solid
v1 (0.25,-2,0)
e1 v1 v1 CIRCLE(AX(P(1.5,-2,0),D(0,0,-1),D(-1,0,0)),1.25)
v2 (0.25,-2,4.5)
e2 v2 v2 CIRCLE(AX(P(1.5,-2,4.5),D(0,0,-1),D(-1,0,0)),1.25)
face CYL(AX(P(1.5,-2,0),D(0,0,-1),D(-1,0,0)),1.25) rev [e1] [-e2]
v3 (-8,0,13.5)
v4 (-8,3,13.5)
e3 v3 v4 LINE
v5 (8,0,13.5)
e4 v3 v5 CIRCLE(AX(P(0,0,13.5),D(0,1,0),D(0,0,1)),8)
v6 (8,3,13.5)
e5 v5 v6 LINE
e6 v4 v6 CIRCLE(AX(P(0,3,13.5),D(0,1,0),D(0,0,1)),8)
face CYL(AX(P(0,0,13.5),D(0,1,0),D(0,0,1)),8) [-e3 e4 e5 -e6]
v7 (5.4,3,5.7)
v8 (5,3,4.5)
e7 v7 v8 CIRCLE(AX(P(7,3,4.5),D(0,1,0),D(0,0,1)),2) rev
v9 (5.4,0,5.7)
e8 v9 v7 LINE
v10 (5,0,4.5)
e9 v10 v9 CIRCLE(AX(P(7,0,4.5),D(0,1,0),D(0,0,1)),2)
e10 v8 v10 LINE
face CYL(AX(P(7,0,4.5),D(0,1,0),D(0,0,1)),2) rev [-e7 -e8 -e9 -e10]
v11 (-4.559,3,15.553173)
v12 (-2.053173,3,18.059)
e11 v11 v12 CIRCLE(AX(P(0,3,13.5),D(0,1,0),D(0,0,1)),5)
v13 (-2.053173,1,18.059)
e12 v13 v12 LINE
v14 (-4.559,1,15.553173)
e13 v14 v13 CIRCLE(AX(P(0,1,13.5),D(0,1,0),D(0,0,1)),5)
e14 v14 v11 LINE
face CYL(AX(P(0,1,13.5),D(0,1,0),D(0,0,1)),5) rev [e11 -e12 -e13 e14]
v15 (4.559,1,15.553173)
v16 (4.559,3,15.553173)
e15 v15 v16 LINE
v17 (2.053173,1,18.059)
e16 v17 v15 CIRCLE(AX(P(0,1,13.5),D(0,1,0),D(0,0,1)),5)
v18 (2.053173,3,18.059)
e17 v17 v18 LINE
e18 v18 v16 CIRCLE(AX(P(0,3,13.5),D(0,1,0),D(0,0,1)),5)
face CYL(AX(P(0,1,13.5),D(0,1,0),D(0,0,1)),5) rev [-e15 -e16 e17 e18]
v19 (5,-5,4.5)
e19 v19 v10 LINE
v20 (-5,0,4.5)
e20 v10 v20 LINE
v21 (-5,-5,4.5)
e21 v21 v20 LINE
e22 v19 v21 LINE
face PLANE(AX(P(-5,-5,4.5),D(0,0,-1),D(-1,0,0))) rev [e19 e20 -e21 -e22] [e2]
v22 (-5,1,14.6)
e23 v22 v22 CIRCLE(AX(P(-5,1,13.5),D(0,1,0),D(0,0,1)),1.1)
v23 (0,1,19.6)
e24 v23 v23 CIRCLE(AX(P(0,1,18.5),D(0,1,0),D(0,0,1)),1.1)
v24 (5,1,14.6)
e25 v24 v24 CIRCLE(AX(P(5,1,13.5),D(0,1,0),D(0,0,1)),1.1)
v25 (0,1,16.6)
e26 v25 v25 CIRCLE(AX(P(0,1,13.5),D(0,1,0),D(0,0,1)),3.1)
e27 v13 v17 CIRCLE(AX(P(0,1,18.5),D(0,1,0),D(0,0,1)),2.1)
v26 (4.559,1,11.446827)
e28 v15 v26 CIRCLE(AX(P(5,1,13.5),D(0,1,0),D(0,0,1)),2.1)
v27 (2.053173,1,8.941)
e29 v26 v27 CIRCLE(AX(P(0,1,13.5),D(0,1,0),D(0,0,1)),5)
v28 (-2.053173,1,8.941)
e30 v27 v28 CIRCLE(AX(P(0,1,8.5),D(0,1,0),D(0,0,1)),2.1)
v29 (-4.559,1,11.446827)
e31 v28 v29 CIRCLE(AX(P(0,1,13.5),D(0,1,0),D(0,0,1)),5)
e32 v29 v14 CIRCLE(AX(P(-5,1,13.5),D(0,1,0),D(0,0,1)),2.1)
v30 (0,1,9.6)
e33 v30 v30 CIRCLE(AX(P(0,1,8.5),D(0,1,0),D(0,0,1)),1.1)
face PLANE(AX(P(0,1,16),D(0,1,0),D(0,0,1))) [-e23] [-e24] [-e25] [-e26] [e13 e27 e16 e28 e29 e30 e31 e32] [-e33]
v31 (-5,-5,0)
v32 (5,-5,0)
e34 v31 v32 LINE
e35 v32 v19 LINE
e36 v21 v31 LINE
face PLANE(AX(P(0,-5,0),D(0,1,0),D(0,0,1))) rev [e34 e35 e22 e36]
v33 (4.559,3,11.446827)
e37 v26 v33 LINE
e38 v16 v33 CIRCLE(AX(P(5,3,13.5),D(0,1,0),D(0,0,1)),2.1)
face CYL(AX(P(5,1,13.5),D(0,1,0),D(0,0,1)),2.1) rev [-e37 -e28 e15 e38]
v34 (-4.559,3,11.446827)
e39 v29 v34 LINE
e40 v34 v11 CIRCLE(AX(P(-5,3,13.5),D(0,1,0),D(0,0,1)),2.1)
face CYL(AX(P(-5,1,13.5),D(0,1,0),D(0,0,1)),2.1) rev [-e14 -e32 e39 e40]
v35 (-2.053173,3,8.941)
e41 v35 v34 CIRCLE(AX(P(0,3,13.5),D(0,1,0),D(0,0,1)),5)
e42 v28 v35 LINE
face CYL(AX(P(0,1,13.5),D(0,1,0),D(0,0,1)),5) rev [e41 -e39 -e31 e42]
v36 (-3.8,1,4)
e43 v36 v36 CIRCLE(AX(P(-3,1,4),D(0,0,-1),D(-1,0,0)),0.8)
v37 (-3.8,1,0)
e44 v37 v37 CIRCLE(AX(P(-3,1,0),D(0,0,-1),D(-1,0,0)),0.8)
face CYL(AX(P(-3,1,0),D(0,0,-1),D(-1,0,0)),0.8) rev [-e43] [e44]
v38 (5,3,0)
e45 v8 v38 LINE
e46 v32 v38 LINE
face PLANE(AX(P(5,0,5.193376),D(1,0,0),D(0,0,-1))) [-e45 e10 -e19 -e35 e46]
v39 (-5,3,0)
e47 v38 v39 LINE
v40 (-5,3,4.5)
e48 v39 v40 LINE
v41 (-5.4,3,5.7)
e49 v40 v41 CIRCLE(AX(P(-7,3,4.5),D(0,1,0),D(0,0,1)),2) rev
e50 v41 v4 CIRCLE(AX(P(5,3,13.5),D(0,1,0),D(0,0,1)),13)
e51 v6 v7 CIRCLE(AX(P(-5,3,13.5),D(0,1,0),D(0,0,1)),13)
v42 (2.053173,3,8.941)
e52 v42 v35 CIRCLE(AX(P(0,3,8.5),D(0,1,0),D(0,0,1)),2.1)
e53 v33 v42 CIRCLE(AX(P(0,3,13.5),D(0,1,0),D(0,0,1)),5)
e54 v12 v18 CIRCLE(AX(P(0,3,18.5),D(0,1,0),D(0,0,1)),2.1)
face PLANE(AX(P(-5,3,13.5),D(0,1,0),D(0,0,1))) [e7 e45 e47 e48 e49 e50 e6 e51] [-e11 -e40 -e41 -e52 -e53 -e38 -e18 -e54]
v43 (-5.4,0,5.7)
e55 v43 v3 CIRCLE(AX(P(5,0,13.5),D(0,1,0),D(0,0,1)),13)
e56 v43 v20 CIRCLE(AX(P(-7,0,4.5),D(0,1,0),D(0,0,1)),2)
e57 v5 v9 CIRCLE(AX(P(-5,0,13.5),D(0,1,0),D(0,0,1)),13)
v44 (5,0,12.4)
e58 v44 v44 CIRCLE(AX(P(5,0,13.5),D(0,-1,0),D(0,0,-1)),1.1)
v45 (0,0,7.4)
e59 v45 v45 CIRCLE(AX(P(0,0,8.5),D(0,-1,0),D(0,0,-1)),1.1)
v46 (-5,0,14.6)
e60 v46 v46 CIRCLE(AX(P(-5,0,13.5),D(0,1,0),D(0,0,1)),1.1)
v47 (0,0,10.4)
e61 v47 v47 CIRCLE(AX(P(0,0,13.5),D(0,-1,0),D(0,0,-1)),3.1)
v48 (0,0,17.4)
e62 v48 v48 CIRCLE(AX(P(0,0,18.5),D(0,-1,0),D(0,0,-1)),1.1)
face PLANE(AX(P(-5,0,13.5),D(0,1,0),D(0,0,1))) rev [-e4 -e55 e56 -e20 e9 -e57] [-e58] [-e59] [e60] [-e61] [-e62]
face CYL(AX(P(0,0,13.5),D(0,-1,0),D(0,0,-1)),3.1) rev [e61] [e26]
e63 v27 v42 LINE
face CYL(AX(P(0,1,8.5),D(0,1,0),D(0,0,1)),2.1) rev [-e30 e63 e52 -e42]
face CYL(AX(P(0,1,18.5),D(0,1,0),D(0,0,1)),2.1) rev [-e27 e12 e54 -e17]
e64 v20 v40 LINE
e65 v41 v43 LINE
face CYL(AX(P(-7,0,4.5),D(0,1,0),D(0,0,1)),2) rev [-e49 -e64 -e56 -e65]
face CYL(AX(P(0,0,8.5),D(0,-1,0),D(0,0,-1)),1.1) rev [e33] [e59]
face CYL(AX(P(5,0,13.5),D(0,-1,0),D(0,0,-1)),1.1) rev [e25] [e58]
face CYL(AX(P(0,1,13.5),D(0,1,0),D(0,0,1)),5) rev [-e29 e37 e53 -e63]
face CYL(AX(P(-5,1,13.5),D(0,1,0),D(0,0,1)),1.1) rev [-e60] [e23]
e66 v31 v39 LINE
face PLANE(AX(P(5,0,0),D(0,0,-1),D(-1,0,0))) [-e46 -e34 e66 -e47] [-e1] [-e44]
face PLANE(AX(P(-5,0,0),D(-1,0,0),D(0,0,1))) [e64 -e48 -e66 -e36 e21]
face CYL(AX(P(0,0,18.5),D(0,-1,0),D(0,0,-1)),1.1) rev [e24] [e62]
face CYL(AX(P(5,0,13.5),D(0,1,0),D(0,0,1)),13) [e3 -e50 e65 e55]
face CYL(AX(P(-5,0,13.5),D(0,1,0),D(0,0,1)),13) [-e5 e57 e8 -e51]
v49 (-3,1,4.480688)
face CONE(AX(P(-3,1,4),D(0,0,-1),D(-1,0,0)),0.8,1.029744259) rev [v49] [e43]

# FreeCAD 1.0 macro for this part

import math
import FreeCAD as App
import Part
import Sketcher
from FreeCAD import Vector


def edges_at(feature, points):
    """Names of the edges that pass closest to the given points."""
    edges = feature.Shape.Edges
    near = lambda p: min(range(len(edges)), key=lambda i: edges[i].distToShape(Part.Vertex(*p))[0])
    return sorted({f"Edge{near(p) + 1}" for p in points})


def add_polygon(sketch, points):
    """Adds a closed chain of lines whose ends are joined by coincident constraints."""
    first, n = sketch.GeometryCount, len(points)
    for a, b in zip(points, points[1:] + points[:1]):
        sketch.addGeometry(Part.LineSegment(App.Vector(*a, 0), App.Vector(*b, 0)), False)
    for i in range(n):
        sketch.addConstraint(Sketcher.Constraint("Coincident", first + i, 2, first + (i + 1) % n, 1))

doc = App.newDocument("Part")
body = doc.addObject("PartDesign::Body", "Body")

# Sketch on XZ plane
sketch1 = doc.addObject("Sketcher::SketchObject", "Sketch")
body.addObject(sketch1)
sketch1.AttachmentSupport = (doc.XZ_Plane, [""])
sketch1.MapMode = "FlatFace"
sketch1.AttachmentOffset = App.Placement(Vector(0, 0, -3), App.Rotation())
sketch1.addGeometry([
    Part.LineSegment(Vector(5, 5, 0), Vector(5, 0, 0)),  # 0
    Part.LineSegment(Vector(5, 0, 0), Vector(-5, 0, 0)),  # 1
    Part.LineSegment(Vector(-5, 0, 0), Vector(-5, 5, 0)),  # 2
    Part.ArcOfCircle(Part.Circle(Vector(5, 14, 0), Vector(0, 0, 1), 13), math.radians(-180), math.radians(-140)),  # 3
    Part.ArcOfCircle(Part.Circle(Vector(0, 14, 0), Vector(0, 0, 1), 8), math.radians(0), math.radians(180)),  # 4
    Part.ArcOfCircle(Part.Circle(Vector(-5, 13, 0), Vector(0, 0, 1), 13), math.radians(-40), math.radians(0)),  # 5
], False)
sketch1.addConstraint([
    Sketcher.Constraint("Coincident", 0, 2, 1, 1),
    Sketcher.Constraint("Coincident", 1, 2, 2, 1),
    Sketcher.Constraint("Coincident", 2, 2, 3, 2),
    Sketcher.Constraint("Tangent", 3, 1, 4, 2),
    Sketcher.Constraint("Tangent", 4, 1, 5, 2),
    Sketcher.Constraint("Coincident", 5, 1, 0, 1),
    Sketcher.Constraint("Vertical", 0),
    Sketcher.Constraint("Horizontal", 1),
    Sketcher.Constraint("Vertical", 2),
    Sketcher.Constraint("Equal", 3, 5),
    Sketcher.Constraint("Symmetric", 0, 2, 1, 2, -1, 1),
    Sketcher.Constraint("Symmetric", 3, 3, 5, 3, -2),
    Sketcher.Constraint("Horizontal", 3, 3, 4, 3),
    Sketcher.Constraint("Vertical", 3, 3, 0, 2),
    Sketcher.Constraint("Radius", 3, 13.0),
    Sketcher.Constraint("Radius", 4, 8.0),
    Sketcher.Constraint("DistanceY", -1, 1, 3, 3, 13.5),
])
pad1 = doc.addObject("PartDesign::Pad", "Pad")
body.addObject(pad1)
pad1.Profile = sketch1
pad1.Length = 3

# Sketch on XZ plane
sketch2 = doc.addObject("Sketcher::SketchObject", "Sketch001")
body.addObject(sketch2)
sketch2.AttachmentSupport = (doc.XZ_Plane, [""])
sketch2.MapMode = "FlatFace"
add_polygon(sketch2, [(-5, 4.5), (-5, 0), (5, 0), (5, 4.5)])  # lines 0-3
sketch2.addConstraint([
    Sketcher.Constraint("Vertical", 0),
    Sketcher.Constraint("Horizontal", 1),
    Sketcher.Constraint("Vertical", 2),
    Sketcher.Constraint("Horizontal", 3),
    Sketcher.Constraint("Symmetric", 0, 2, 1, 2, -1, 1),
    Sketcher.Constraint("DistanceX", 1, 1, 1, 2, 10.0),
    Sketcher.Constraint("DistanceY", 0, 2, 0, 1, 4.5),
])
pad2 = doc.addObject("PartDesign::Pad", "Pad001")
body.addObject(pad2)
pad2.Profile = sketch2
pad2.Length = 5

# Sketch on XZ plane
sketch3 = doc.addObject("Sketcher::SketchObject", "Sketch002")
body.addObject(sketch3)
sketch3.AttachmentSupport = (doc.XZ_Plane, [""])
sketch3.MapMode = "FlatFace"
sketch3.AttachmentOffset = App.Placement(Vector(0, 0, -3), App.Rotation())
sketch3.addGeometry([
    Part.ArcOfCircle(Part.Circle(Vector(0, 13.5, 0), Vector(0, 0, 1), 5), math.radians(24), math.radians(66)),  # 0
    Part.ArcOfCircle(Part.Circle(Vector(5, 13.5, 0), Vector(0, 0, 1), 2.1), math.radians(-102), math.radians(102)),  # 1
    Part.ArcOfCircle(Part.Circle(Vector(0, 13.5, 0), Vector(0, 0, 1), 5), math.radians(-66), math.radians(-24)),  # 2
    Part.ArcOfCircle(Part.Circle(Vector(0, 8.5, 0), Vector(0, 0, 1), 2.1), math.radians(168), math.radians(372)),  # 3
    Part.ArcOfCircle(Part.Circle(Vector(0, 13.5, 0), Vector(0, 0, 1), 5), math.radians(-156), math.radians(-114)),  # 4
    Part.ArcOfCircle(Part.Circle(Vector(-5, 13.5, 0), Vector(0, 0, 1), 2.1), math.radians(78), math.radians(282)),  # 5
    Part.ArcOfCircle(Part.Circle(Vector(0, 13.5, 0), Vector(0, 0, 1), 5), math.radians(114), math.radians(156)),  # 6
    Part.ArcOfCircle(Part.Circle(Vector(0, 18.5, 0), Vector(0, 0, 1), 2.1), math.radians(-12), math.radians(192)),  # 7
], False)
sketch3.addConstraint([
    Sketcher.Constraint("Coincident", 0, 1, 1, 2),
    Sketcher.Constraint("Coincident", 1, 1, 2, 2),
    Sketcher.Constraint("Coincident", 2, 1, 3, 2),
    Sketcher.Constraint("Coincident", 3, 1, 4, 2),
    Sketcher.Constraint("Coincident", 4, 1, 5, 2),
    Sketcher.Constraint("Coincident", 5, 1, 6, 2),
    Sketcher.Constraint("Coincident", 6, 1, 7, 2),
    Sketcher.Constraint("Coincident", 7, 1, 0, 2),
    Sketcher.Constraint("Coincident", 2, 3, 0, 3),
    Sketcher.Constraint("Coincident", 4, 3, 0, 3),
    Sketcher.Constraint("Coincident", 6, 3, 0, 3),
    Sketcher.Constraint("Equal", 0, 2),
    Sketcher.Constraint("Equal", 1, 3),
    Sketcher.Constraint("Equal", 2, 4),
    Sketcher.Constraint("Equal", 3, 5),
    Sketcher.Constraint("Equal", 4, 6),
    Sketcher.Constraint("Equal", 5, 7),
    Sketcher.Constraint("Symmetric", 1, 3, 5, 3, -2),
    Sketcher.Constraint("Symmetric", 2, 1, 3, 1, -2),
    Sketcher.Constraint("PointOnObject", 7, 3, -2),
    Sketcher.Constraint("Horizontal", 0, 3, 1, 3),
    Sketcher.Constraint("Vertical", 3, 1, 6, 1),
    Sketcher.Constraint("Radius", 0, 5.0),
    Sketcher.Constraint("Radius", 1, 2.1),
    Sketcher.Constraint("DistanceX", -1, 1, 1, 3, 5.0),
    Sketcher.Constraint("DistanceY", 3, 3, 0, 3, 5.0),
    Sketcher.Constraint("DistanceY", -1, 1, 0, 3, 13.5),
])
pocket1 = doc.addObject("PartDesign::Pocket", "Pocket")
body.addObject(pocket1)
pocket1.Profile = sketch3
pocket1.Length = 2
pocket1.Reversed = True

# Sketch on XZ plane
sketch4 = doc.addObject("Sketcher::SketchObject", "Sketch003")
body.addObject(sketch4)
sketch4.AttachmentSupport = (doc.XZ_Plane, [""])
sketch4.MapMode = "FlatFace"
sketch4.AttachmentOffset = App.Placement(Vector(0, 0, -1), App.Rotation())
sketch4.addGeometry(Part.Circle(Vector(-5, 13.5, 0), Vector(0, 0, 1), 1.1), False)
sketch4.addConstraint([
    Sketcher.Constraint("Diameter", 0, 2.2),
    Sketcher.Constraint("DistanceX", 0, 3, -1, 1, 5.0),
    Sketcher.Constraint("DistanceY", -1, 1, 0, 3, 13.5),
])
doc.recompute()
hole = doc.addObject("PartDesign::Hole", "Hole")
body.addObject(hole)
hole.Profile = sketch4
hole.ThreadType = "None"
hole.Diameter = 2.2
hole.DepthType = "Dimension"
hole.Depth = 6.000025
hole.DrillPoint = "Flat"
hole.Reversed = True

# Sketch on XZ plane
sketch5 = doc.addObject("Sketcher::SketchObject", "Sketch004")
body.addObject(sketch5)
sketch5.AttachmentSupport = (doc.XZ_Plane, [""])
sketch5.MapMode = "FlatFace"
sketch5.addGeometry(Part.Circle(Vector(0, 13.5, 0), Vector(0, 0, 1), 3.1), False)
sketch5.addConstraint([
    Sketcher.Constraint("PointOnObject", 0, 3, -2),
    Sketcher.Constraint("Diameter", 0, 6.2),
    Sketcher.Constraint("DistanceY", -1, 1, 0, 3, 13.5),
])
doc.recompute()
hole2 = doc.addObject("PartDesign::Hole", "Hole001")
body.addObject(hole2)
hole2.Profile = sketch5
hole2.ThreadType = "None"
hole2.Diameter = 6.2
hole2.DepthType = "Dimension"
hole2.Depth = 3
hole2.DrillPoint = "Flat"

# Sketch on XZ plane
sketch6 = doc.addObject("Sketcher::SketchObject", "Sketch005")
body.addObject(sketch6)
sketch6.AttachmentSupport = (doc.XZ_Plane, [""])
sketch6.MapMode = "FlatFace"
sketch6.addGeometry([
    Part.Circle(Vector(0, 8.5, 0), Vector(0, 0, 1), 1.1),
    Part.Circle(Vector(5, 13.5, 0), Vector(0, 0, 1), 1.1),
    Part.Circle(Vector(0, 18.5, 0), Vector(0, 0, 1), 1.1),
], False)
sketch6.addConstraint([
    Sketcher.Constraint("Equal", 0, 1),
    Sketcher.Constraint("Equal", 1, 2),
    Sketcher.Constraint("PointOnObject", 0, 3, -2),
    Sketcher.Constraint("PointOnObject", 2, 3, -2),
    Sketcher.Constraint("Diameter", 0, 2.2),
    Sketcher.Constraint("DistanceX", -1, 1, 1, 3, 5.0),
    Sketcher.Constraint("DistanceY", 0, 3, 1, 3, 5.0),
    Sketcher.Constraint("DistanceY", 1, 3, 2, 3, 5.0),
    Sketcher.Constraint("DistanceY", -1, 1, 0, 3, 8.5),
])
doc.recompute()
hole3 = doc.addObject("PartDesign::Hole", "Hole002")
body.addObject(hole3)
hole3.Profile = sketch6
hole3.ThreadType = "None"
hole3.Diameter = 2.2
hole3.DepthType = "Dimension"
hole3.Depth = 3
hole3.DrillPoint = "Flat"

# Sketch on XY plane
sketch7 = doc.addObject("Sketcher::SketchObject", "Sketch006")
body.addObject(sketch7)
sketch7.AttachmentSupport = (doc.XY_Plane, [""])
sketch7.MapMode = "FlatFace"
sketch7.addGeometry(Part.Circle(Vector(1.5, -2, 0), Vector(0, 0, 1), 1.2), False)
sketch7.addConstraint([
    Sketcher.Constraint("Diameter", 0, 2.5),
    Sketcher.Constraint("DistanceY", 0, 3, -1, 1, 2.0),
    Sketcher.Constraint("DistanceX", -1, 1, 0, 3, 1.5),
])
doc.recompute()
hole4 = doc.addObject("PartDesign::Hole", "Hole003")
body.addObject(hole4)
hole4.Profile = sketch7
hole4.ThreadType = "None"
hole4.Diameter = 2.5
hole4.DepthType = "Dimension"
hole4.Depth = 21.5
hole4.DrillPoint = "Flat"
hole4.Reversed = True

# Sketch on XY plane
sketch8 = doc.addObject("Sketcher::SketchObject", "Sketch007")
body.addObject(sketch8)
sketch8.AttachmentSupport = (doc.XY_Plane, [""])
sketch8.MapMode = "FlatFace"
sketch8.addGeometry(Part.Circle(Vector(-3, 1, 0), Vector(0, 0, 1), 0.8), False)
sketch8.addConstraint([
    Sketcher.Constraint("Diameter", 0, 1.6),
    Sketcher.Constraint("DistanceX", 0, 3, -1, 1, 3.0),
    Sketcher.Constraint("DistanceY", -1, 1, 0, 3, 1.0),
])
doc.recompute()
hole5 = doc.addObject("PartDesign::Hole", "Hole004")
body.addObject(hole5)
hole5.Profile = sketch8
hole5.ThreadType = "None"
hole5.Diameter = 1.6
hole5.DepthType = "Dimension"
hole5.Depth = 4
hole5.DrillPoint = "Angled"
hole5.DrillPointAngle = 118
hole5.Reversed = True
doc.recompute()

fillet = doc.addObject("PartDesign::Fillet", "Fillet")
body.addObject(fillet)
fillet.Base = (hole5, edges_at(hole5, [(5, 1.5, 5.193), (-5, 1.5, 5.193)]))
fillet.Radius = 2

doc.recompute()
